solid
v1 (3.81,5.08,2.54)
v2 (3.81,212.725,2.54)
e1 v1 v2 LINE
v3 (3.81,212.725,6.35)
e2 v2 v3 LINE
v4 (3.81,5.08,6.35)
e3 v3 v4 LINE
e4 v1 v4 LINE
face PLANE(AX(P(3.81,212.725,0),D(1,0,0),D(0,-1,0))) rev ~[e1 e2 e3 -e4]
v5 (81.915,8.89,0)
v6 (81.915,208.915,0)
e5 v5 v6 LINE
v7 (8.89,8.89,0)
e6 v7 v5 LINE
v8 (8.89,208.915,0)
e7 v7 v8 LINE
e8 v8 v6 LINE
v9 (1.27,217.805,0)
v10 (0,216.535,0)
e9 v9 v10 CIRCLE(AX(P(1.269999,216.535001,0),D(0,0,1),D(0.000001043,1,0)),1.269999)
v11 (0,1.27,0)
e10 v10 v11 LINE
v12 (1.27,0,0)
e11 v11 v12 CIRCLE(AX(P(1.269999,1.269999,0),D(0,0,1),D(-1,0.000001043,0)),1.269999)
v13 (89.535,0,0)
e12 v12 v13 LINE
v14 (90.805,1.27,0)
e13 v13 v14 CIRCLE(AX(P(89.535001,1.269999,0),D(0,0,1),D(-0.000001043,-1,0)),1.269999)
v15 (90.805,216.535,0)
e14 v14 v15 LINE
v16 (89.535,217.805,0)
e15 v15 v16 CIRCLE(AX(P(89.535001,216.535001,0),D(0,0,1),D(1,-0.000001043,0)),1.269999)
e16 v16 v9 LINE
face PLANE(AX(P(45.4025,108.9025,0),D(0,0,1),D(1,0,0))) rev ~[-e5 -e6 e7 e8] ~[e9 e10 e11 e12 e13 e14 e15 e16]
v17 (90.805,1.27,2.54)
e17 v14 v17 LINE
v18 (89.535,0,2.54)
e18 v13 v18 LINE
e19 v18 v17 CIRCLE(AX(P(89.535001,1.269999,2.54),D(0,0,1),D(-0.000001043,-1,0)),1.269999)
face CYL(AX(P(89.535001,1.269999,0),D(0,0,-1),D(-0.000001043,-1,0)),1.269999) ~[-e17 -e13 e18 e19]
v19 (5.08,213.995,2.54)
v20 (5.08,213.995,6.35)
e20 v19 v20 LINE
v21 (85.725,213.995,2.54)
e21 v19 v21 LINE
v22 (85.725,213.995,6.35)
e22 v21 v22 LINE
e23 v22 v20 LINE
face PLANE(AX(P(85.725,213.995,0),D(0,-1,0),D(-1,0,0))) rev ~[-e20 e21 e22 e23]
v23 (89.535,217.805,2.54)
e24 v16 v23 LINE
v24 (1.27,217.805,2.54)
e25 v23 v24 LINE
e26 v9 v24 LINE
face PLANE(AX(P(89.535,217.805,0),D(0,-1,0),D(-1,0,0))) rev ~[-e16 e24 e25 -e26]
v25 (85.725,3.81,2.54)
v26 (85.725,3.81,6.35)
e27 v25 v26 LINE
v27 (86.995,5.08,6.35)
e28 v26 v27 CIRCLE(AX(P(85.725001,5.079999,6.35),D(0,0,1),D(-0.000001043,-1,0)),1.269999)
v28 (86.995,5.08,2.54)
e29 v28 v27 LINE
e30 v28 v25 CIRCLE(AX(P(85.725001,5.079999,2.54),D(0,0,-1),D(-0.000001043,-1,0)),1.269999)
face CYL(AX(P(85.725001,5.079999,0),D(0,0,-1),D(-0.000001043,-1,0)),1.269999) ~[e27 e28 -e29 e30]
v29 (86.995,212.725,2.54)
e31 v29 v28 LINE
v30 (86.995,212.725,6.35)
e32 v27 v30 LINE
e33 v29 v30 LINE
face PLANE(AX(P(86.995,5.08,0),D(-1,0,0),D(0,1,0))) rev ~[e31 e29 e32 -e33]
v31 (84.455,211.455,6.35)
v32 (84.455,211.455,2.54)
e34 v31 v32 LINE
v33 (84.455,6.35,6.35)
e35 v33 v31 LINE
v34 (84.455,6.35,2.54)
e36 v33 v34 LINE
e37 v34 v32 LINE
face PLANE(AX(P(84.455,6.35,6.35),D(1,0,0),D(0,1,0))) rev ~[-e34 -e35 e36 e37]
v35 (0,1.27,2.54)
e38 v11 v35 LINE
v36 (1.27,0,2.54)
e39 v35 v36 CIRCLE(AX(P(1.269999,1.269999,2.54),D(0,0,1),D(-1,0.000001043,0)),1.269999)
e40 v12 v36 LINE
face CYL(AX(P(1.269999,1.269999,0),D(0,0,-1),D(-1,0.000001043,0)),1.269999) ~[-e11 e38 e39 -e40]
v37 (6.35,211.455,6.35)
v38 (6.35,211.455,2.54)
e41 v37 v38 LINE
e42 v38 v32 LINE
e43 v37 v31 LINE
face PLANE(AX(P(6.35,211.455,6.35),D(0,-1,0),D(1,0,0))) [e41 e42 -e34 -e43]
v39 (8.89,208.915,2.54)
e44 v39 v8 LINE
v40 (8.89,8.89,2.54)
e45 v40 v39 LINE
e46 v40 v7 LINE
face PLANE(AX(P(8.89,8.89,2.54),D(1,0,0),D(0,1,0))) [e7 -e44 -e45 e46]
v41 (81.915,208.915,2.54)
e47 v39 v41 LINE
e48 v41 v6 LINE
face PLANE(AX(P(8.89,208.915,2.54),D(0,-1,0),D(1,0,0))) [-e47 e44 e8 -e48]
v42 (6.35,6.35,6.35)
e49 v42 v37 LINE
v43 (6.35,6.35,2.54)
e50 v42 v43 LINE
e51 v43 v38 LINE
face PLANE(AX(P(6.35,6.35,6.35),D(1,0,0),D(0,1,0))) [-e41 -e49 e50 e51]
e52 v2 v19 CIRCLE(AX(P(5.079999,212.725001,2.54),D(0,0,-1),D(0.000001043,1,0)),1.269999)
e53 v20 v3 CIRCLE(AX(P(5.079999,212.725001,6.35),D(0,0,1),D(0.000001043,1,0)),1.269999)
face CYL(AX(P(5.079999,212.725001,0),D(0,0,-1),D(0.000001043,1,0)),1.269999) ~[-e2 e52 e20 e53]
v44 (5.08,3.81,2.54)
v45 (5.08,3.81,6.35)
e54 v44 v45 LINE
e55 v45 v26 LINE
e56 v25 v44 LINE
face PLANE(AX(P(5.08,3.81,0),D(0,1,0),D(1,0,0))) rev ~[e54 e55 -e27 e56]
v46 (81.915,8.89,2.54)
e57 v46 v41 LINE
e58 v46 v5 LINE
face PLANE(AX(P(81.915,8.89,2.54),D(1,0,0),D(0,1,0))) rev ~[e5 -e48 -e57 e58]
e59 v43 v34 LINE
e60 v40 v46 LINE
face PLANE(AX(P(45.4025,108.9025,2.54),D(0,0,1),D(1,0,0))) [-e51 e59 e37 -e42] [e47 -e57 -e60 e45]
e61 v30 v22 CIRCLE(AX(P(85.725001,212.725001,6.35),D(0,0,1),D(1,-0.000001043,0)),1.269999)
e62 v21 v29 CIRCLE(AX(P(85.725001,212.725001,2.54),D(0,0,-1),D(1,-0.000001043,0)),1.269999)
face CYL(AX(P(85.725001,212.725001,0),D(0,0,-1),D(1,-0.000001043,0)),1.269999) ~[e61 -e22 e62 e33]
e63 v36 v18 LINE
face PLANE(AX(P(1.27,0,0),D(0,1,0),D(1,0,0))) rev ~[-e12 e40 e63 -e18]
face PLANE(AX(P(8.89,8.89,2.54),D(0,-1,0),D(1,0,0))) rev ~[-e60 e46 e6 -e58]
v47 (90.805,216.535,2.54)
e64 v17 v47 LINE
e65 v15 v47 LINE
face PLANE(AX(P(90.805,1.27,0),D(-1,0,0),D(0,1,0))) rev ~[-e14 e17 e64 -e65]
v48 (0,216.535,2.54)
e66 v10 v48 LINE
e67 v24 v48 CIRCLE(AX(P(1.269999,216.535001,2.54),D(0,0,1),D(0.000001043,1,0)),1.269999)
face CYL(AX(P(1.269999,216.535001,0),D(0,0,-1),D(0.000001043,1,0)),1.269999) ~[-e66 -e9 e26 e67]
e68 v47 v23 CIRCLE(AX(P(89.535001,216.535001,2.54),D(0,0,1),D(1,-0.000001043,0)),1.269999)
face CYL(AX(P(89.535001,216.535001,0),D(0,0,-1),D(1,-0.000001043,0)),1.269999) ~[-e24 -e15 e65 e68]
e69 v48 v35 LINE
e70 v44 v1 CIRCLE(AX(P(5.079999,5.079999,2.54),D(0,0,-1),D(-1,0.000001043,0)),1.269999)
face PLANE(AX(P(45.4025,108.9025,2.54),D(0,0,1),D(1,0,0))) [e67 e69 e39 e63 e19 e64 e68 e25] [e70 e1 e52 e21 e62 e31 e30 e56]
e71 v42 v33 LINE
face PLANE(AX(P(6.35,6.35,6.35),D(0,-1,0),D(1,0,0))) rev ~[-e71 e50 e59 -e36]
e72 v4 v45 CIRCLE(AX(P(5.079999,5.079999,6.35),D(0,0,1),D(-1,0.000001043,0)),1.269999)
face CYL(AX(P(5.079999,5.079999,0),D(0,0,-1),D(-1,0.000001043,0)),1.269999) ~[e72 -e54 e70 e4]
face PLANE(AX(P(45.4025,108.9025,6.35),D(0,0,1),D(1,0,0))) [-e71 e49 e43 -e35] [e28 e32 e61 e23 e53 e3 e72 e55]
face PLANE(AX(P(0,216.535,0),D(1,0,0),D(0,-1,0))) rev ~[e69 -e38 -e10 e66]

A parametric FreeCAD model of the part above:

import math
import FreeCAD as App
import Part
import Sketcher
Q = App.Units.Quantity

doc = App.newDocument("Part")
body = doc.addObject("PartDesign::Body", "Body")

# Sketch on XY plane
sketch1 = body.newObject("Sketcher::SketchObject", "Sketch")
sketch1.AttachmentSupport = (doc.getObject("XY_Plane"), [""])
sketch1.MapMode = "FlatFace"
sketch1.addGeometry([
    Part.ArcOfCircle(Part.Circle(App.Vector(1.3, 1.3, 0), App.Vector(0, 0, 1), 1.3), math.radians(180), math.radians(270)),  # 0
    Part.LineSegment(App.Vector(1.3, 0, 0), App.Vector(89.5, 0, 0)),  # 1
    Part.ArcOfCircle(Part.Circle(App.Vector(89.5, 1.3, 0), App.Vector(0, 0, 1), 1.3), math.radians(-90), math.radians(0)),  # 2
    Part.LineSegment(App.Vector(90.8, 1.3, 0), App.Vector(90.8, 216.5, 0)),  # 3
    Part.ArcOfCircle(Part.Circle(App.Vector(89.5, 216.5, 0), App.Vector(0, 0, 1), 1.3), math.radians(0), math.radians(90)),  # 4
    Part.LineSegment(App.Vector(89.5, 217.8, 0), App.Vector(1.3, 217.8, 0)),  # 5
    Part.ArcOfCircle(Part.Circle(App.Vector(1.3, 216.5, 0), App.Vector(0, 0, 1), 1.3), math.radians(90), math.radians(180)),  # 6
    Part.LineSegment(App.Vector(0, 216.5, 0), App.Vector(0, 1.3, 0)),  # 7
], False)
sketch1.addConstraint([
    Sketcher.Constraint("Tangent", 0, 2, 1, 1),
    Sketcher.Constraint("Tangent", 1, 2, 2, 1),
    Sketcher.Constraint("Tangent", 2, 2, 3, 1),
    Sketcher.Constraint("Tangent", 3, 2, 4, 1),
    Sketcher.Constraint("Tangent", 4, 2, 5, 1),
    Sketcher.Constraint("Tangent", 5, 2, 6, 1),
    Sketcher.Constraint("Tangent", 6, 2, 7, 1),
    Sketcher.Constraint("Tangent", 7, 2, 0, 1),
    Sketcher.Constraint("Horizontal", 1),
    Sketcher.Constraint("Vertical", 3),
    Sketcher.Constraint("Horizontal", 5),
    Sketcher.Constraint("Vertical", 7),
    Sketcher.Constraint("Equal", 0, 2),
    Sketcher.Constraint("Equal", 2, 4),
    Sketcher.Constraint("Equal", 4, 6),
    Sketcher.Constraint("PointOnObject", 0, 2, -1),
    Sketcher.Constraint("PointOnObject", 6, 2, -2),
    Sketcher.Constraint("Radius", 0, Q("0.0499999 in")),
    Sketcher.Constraint("DistanceX", 1, 1, 1, 2, Q("3.475 in")),
    Sketcher.Constraint("DistanceY", 3, 1, 3, 2, Q("8.475 in")),
])
pad1 = body.newObject("PartDesign::Pad", "Pad")
pad1.Profile = sketch1
pad1.Length = Q("0.1 in")

# Sketch on XY plane
sketch2 = body.newObject("Sketcher::SketchObject", "Sketch001")
sketch2.AttachmentSupport = (doc.getObject("XY_Plane"), [""])
sketch2.MapMode = "FlatFace"
sketch2.addGeometry([
    Part.LineSegment(App.Vector(3.8, 212.7, 0), App.Vector(3.8, 5.1, 0)),  # 0
    Part.ArcOfCircle(Part.Circle(App.Vector(5.1, 5.1, 0), App.Vector(0, 0, 1), 1.3), math.radians(180), math.radians(270)),  # 1
    Part.LineSegment(App.Vector(5.1, 3.8, 0), App.Vector(85.7, 3.8, 0)),  # 2
    Part.ArcOfCircle(Part.Circle(App.Vector(85.7, 5.1, 0), App.Vector(0, 0, 1), 1.3), math.radians(-90), math.radians(0)),  # 3
    Part.LineSegment(App.Vector(87, 5.1, 0), App.Vector(87, 212.7, 0)),  # 4
    Part.ArcOfCircle(Part.Circle(App.Vector(85.7, 212.7, 0), App.Vector(0, 0, 1), 1.3), math.radians(0), math.radians(90)),  # 5
    Part.LineSegment(App.Vector(85.7, 214, 0), App.Vector(5.1, 214, 0)),  # 6
    Part.ArcOfCircle(Part.Circle(App.Vector(5.1, 212.7, 0), App.Vector(0, 0, 1), 1.3), math.radians(90), math.radians(180)),  # 7
], False)
sketch2.addConstraint([
    Sketcher.Constraint("Tangent", 0, 2, 1, 1),
    Sketcher.Constraint("Tangent", 1, 2, 2, 1),
    Sketcher.Constraint("Tangent", 2, 2, 3, 1),
    Sketcher.Constraint("Tangent", 3, 2, 4, 1),
    Sketcher.Constraint("Tangent", 4, 2, 5, 1),
    Sketcher.Constraint("Tangent", 5, 2, 6, 1),
    Sketcher.Constraint("Tangent", 6, 2, 7, 1),
    Sketcher.Constraint("Tangent", 7, 2, 0, 1),
    Sketcher.Constraint("Vertical", 0),
    Sketcher.Constraint("Horizontal", 2),
    Sketcher.Constraint("Vertical", 4),
    Sketcher.Constraint("Horizontal", 6),
    Sketcher.Constraint("Equal", 1, 3),
    Sketcher.Constraint("Equal", 3, 5),
    Sketcher.Constraint("Equal", 5, 7),
    Sketcher.Constraint("Radius", 1, Q("0.0499999 in")),
    Sketcher.Constraint("DistanceX", -1, 1, 1, 3, Q("0.1999999 in")),
    Sketcher.Constraint("DistanceY", -1, 1, 1, 3, Q("0.1999999 in")),
    Sketcher.Constraint("DistanceX", 2, 1, 2, 2, Q("3.175 in")),
    Sketcher.Constraint("DistanceY", 0, 2, 0, 1, Q("8.175 in")),
])
pad2 = body.newObject("PartDesign::Pad", "Pad001")
pad2.Profile = sketch2
pad2.Length = Q("0.25 in")

# Sketch on XY plane
sketch3 = body.newObject("Sketcher::SketchObject", "Sketch002")
sketch3.AttachmentSupport = (doc.getObject("XY_Plane"), [""])
sketch3.MapMode = "FlatFace"
sketch3.AttachmentOffset = App.Placement(App.Vector(0, 0, 0.25 * 25.4), App.Rotation())
sketch3.addGeometry([
    Part.LineSegment(App.Vector(6, 211, 0), App.Vector(6, 6, 0)),
    Part.LineSegment(App.Vector(6, 6, 0), App.Vector(84, 6, 0)),
    Part.LineSegment(App.Vector(84, 6, 0), App.Vector(84, 211, 0)),
    Part.LineSegment(App.Vector(84, 211, 0), App.Vector(6, 211, 0)),
], False)
sketch3.addConstraint([
    Sketcher.Constraint("Coincident", 0, 2, 1, 1),
    Sketcher.Constraint("Coincident", 1, 2, 2, 1),
    Sketcher.Constraint("Coincident", 2, 2, 3, 1),
    Sketcher.Constraint("Coincident", 3, 2, 0, 1),
    Sketcher.Constraint("Vertical", 0),
    Sketcher.Constraint("Horizontal", 1),
    Sketcher.Constraint("Vertical", 2),
    Sketcher.Constraint("Horizontal", 3),
    Sketcher.Constraint("DistanceX", 1, 1, 1, 2, Q("3.075 in")),
    Sketcher.Constraint("DistanceY", 0, 2, 0, 1, Q("8.075 in")),
    Sketcher.Constraint("DistanceX", -1, 1, 0, 2, Q("0.25 in")),
    Sketcher.Constraint("DistanceY", -1, 1, 0, 2, Q("0.25 in")),
])
pocket1 = body.newObject("PartDesign::Pocket", "Pocket")
pocket1.Profile = sketch3
pocket1.Length = Q("0.15 in")

# Sketch on XY plane
sketch4 = body.newObject("Sketcher::SketchObject", "Sketch003")
sketch4.AttachmentSupport = (doc.getObject("XY_Plane"), [""])
sketch4.MapMode = "FlatFace"
sketch4.AttachmentOffset = App.Placement(App.Vector(0, 0, 0.1 * 25.4), App.Rotation())
sketch4.addGeometry([
    Part.LineSegment(App.Vector(9, 209, 0), App.Vector(9, 9, 0)),
    Part.LineSegment(App.Vector(9, 9, 0), App.Vector(82, 9, 0)),
    Part.LineSegment(App.Vector(82, 9, 0), App.Vector(82, 209, 0)),
    Part.LineSegment(App.Vector(82, 209, 0), App.Vector(9, 209, 0)),
], False)
sketch4.addConstraint([
    Sketcher.Constraint("Coincident", 0, 2, 1, 1),
    Sketcher.Constraint("Coincident", 1, 2, 2, 1),
    Sketcher.Constraint("Coincident", 2, 2, 3, 1),
    Sketcher.Constraint("Coincident", 3, 2, 0, 1),
    Sketcher.Constraint("Vertical", 0),
    Sketcher.Constraint("Horizontal", 1),
    Sketcher.Constraint("Vertical", 2),
    Sketcher.Constraint("Horizontal", 3),
    Sketcher.Constraint("DistanceX", 1, 1, 1, 2, Q("2.875 in")),
    Sketcher.Constraint("DistanceY", 0, 2, 0, 1, Q("7.875 in")),
    Sketcher.Constraint("DistanceX", -1, 1, 0, 2, Q("0.35 in")),
    Sketcher.Constraint("DistanceY", -1, 1, 0, 2, Q("0.35 in")),
])
pocket2 = body.newObject("PartDesign::Pocket", "Pocket001")
pocket2.Profile = sketch4
pocket2.Length = Q("0.1 in")

doc.recompute()
